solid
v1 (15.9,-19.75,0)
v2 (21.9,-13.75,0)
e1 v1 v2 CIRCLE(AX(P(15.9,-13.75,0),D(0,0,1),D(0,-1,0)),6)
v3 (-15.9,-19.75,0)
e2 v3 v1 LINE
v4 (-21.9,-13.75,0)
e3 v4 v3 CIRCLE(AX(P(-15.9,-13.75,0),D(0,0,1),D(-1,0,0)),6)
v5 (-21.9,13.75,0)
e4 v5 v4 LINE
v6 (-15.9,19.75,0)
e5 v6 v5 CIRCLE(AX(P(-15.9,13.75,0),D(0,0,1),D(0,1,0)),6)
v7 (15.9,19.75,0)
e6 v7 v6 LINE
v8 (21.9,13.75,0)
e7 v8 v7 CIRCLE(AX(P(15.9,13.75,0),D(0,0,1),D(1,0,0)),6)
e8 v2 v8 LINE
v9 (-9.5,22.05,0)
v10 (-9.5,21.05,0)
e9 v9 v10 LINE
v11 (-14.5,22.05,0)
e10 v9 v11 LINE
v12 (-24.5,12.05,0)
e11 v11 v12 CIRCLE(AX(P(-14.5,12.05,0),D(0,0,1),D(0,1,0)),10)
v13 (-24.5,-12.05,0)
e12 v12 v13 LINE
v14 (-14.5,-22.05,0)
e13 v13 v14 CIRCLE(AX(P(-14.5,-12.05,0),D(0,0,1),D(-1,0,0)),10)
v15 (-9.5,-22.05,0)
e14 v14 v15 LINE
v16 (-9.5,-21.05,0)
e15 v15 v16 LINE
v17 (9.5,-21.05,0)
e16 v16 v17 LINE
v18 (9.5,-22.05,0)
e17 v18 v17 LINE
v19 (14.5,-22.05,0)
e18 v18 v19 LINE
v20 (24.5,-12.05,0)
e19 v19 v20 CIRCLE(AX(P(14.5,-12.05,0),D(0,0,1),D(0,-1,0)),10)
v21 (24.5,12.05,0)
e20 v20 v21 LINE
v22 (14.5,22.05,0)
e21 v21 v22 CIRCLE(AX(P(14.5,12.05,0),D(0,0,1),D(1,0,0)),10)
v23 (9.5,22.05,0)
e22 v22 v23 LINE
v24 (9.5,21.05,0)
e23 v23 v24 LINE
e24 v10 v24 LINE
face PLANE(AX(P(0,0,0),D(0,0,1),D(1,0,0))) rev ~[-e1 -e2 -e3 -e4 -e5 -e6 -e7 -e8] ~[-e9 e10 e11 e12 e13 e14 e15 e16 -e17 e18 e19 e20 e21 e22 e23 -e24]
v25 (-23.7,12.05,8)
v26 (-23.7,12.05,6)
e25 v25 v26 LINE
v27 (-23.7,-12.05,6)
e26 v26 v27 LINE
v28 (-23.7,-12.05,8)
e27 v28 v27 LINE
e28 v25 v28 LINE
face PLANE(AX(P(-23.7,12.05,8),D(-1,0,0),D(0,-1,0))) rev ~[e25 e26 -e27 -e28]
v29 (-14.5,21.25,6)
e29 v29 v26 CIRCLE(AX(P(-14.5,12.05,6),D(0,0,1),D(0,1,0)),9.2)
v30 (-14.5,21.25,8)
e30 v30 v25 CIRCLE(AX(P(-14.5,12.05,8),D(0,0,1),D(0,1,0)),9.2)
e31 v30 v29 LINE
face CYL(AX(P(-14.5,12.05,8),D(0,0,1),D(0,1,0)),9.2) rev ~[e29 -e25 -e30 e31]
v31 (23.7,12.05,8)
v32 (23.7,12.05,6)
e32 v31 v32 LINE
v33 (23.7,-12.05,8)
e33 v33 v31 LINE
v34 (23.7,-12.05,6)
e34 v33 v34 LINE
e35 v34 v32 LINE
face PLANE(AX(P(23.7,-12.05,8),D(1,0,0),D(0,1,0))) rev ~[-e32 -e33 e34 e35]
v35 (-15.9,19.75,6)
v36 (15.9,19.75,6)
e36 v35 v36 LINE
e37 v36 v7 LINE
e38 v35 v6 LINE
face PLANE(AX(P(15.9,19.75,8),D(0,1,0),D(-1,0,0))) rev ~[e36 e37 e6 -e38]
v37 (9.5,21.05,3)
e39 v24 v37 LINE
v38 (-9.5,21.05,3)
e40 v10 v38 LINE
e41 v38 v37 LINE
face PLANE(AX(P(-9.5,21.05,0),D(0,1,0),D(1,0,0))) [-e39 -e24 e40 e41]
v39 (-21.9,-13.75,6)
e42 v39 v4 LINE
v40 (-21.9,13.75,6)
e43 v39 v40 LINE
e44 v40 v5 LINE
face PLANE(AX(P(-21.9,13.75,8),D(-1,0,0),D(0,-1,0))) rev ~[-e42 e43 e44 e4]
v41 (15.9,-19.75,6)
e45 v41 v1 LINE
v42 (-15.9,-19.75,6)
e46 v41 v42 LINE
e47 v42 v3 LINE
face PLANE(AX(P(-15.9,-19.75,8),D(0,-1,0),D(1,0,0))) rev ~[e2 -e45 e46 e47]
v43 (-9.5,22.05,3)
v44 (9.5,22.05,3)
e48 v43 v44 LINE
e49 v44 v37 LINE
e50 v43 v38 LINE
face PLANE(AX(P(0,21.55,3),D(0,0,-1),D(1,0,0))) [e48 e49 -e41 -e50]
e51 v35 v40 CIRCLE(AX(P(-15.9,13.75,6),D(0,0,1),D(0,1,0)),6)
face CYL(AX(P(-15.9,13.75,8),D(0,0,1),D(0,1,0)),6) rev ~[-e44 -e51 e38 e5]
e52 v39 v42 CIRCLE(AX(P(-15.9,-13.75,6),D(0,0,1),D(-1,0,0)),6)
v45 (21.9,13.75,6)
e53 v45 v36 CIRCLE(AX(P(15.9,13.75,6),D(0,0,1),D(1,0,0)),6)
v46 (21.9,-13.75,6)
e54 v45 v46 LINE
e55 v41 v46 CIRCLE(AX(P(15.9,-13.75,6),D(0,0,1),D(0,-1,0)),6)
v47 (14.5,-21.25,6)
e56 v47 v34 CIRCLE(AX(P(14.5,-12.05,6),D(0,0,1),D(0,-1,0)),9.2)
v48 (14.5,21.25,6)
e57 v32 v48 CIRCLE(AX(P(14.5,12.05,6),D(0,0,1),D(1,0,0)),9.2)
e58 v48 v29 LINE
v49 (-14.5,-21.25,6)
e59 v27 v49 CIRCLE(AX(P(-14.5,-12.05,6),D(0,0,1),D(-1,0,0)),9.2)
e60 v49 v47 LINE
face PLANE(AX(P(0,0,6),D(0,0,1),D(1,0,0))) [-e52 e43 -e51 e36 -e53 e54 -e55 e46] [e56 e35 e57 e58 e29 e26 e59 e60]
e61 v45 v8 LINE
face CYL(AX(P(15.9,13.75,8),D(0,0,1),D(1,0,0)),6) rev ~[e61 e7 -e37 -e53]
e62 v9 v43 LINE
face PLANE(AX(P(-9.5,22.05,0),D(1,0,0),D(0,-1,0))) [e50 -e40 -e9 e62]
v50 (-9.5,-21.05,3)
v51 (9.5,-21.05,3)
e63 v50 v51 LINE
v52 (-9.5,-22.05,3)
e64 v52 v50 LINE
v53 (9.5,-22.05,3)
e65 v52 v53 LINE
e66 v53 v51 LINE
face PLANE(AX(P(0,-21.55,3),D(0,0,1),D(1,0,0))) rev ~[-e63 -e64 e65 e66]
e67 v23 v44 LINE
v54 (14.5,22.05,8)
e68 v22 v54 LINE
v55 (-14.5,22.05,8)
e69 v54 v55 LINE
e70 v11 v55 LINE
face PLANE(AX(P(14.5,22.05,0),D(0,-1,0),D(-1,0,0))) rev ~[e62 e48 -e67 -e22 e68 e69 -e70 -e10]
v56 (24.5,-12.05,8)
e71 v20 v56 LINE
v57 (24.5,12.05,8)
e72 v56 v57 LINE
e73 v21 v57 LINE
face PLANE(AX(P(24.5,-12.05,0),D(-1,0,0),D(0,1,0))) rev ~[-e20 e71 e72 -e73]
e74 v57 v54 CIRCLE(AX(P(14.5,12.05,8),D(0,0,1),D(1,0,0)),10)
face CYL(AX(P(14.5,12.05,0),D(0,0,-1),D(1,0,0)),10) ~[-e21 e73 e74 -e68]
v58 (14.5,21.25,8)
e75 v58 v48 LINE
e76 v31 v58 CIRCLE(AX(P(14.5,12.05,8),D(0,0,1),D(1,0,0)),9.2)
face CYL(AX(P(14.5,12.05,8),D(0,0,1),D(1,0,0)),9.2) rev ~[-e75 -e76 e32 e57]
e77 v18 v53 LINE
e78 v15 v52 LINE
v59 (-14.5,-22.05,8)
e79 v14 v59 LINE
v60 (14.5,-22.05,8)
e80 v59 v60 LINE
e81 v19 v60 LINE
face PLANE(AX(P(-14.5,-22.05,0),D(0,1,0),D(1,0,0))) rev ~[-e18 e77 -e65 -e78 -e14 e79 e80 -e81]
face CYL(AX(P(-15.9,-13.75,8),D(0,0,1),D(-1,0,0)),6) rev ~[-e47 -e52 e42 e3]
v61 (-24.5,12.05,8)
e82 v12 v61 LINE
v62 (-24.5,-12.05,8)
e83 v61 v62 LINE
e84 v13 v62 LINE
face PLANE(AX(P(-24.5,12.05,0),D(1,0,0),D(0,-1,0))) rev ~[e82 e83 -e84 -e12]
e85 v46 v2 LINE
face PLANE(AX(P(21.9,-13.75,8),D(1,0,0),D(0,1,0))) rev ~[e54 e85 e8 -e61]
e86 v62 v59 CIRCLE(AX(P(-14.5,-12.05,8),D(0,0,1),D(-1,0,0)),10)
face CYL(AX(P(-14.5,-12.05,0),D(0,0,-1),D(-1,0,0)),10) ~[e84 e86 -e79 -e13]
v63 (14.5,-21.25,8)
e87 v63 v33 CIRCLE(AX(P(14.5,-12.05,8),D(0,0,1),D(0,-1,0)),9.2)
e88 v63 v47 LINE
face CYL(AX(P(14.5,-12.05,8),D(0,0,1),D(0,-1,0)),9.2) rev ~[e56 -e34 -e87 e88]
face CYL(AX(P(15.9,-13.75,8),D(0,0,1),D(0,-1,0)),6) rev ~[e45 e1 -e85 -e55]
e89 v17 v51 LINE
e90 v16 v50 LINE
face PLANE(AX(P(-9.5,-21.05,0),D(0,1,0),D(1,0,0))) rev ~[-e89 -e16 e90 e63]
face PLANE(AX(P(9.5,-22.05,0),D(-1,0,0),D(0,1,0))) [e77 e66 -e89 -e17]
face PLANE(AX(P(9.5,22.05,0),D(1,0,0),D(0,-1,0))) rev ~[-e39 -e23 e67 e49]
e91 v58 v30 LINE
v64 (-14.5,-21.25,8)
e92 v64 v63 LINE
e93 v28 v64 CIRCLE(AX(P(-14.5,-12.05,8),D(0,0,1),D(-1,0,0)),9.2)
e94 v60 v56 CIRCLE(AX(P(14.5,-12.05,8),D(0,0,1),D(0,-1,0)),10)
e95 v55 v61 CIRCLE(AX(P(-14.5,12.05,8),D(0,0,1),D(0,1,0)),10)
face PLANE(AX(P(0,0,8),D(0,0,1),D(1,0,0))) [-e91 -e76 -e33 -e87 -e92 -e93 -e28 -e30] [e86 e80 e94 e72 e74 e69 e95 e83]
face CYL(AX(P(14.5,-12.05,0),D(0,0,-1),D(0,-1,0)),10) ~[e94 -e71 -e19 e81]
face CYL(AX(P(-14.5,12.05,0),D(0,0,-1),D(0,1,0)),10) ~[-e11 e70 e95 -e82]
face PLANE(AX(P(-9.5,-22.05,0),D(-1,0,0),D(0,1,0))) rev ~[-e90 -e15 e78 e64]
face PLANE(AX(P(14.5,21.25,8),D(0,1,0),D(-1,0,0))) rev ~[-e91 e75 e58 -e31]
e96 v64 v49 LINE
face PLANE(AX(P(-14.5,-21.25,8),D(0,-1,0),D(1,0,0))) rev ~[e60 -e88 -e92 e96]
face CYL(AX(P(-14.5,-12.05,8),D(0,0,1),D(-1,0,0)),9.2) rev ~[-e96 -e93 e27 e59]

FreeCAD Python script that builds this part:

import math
import FreeCAD as App
import Part
import Sketcher
Q = App.Units.Quantity

doc = App.newDocument("Part")
body = doc.addObject("PartDesign::Body", "Body")

sketch1 = doc.addObject("Sketcher::SketchObject", "Sketch")
body.addObject(sketch1)
sketch1.AttachmentSupport = (doc.XY_Plane, [""])
sketch1.MapMode = "FlatFace"
sketch1.addGeometry(Part.LineSegment(App.Vector(-14, -22, 0), App.Vector(14, -22, 0)), False)
sketch1.addGeometry(Part.ArcOfCircle(Part.Circle(App.Vector(14, -12, 0), App.Vector(0, 0, 1), 10), math.radians(-90), math.radians(0)), False)
sketch1.addGeometry(Part.LineSegment(App.Vector(24, -12, 0), App.Vector(24, 12, 0)), False)
sketch1.addGeometry(Part.ArcOfCircle(Part.Circle(App.Vector(14, 12, 0), App.Vector(0, 0, 1), 10), math.radians(0), math.radians(90)), False)
sketch1.addGeometry(Part.LineSegment(App.Vector(14, 22, 0), App.Vector(-14, 22, 0)), False)
sketch1.addGeometry(Part.ArcOfCircle(Part.Circle(App.Vector(-14, 12, 0), App.Vector(0, 0, 1), 10), math.radians(90), math.radians(180)), False)
sketch1.addGeometry(Part.LineSegment(App.Vector(-24, 12, 0), App.Vector(-24, -12, 0)), False)
sketch1.addGeometry(Part.ArcOfCircle(Part.Circle(App.Vector(-14, -12, 0), App.Vector(0, 0, 1), 10), math.radians(180), math.radians(270)), False)
sketch1.addConstraint(Sketcher.Constraint("Tangent", 0, 2, 1, 1))
sketch1.addConstraint(Sketcher.Constraint("Tangent", 1, 2, 2, 1))
sketch1.addConstraint(Sketcher.Constraint("Tangent", 2, 2, 3, 1))
sketch1.addConstraint(Sketcher.Constraint("Tangent", 3, 2, 4, 1))
sketch1.addConstraint(Sketcher.Constraint("Tangent", 4, 2, 5, 1))
sketch1.addConstraint(Sketcher.Constraint("Tangent", 5, 2, 6, 1))
sketch1.addConstraint(Sketcher.Constraint("Tangent", 6, 2, 7, 1))
sketch1.addConstraint(Sketcher.Constraint("Tangent", 7, 2, 0, 1))
sketch1.addConstraint(Sketcher.Constraint("Horizontal", 0))
sketch1.addConstraint(Sketcher.Constraint("Vertical", 2))
sketch1.addConstraint(Sketcher.Constraint("Horizontal", 4))
sketch1.addConstraint(Sketcher.Constraint("Vertical", 6))
sketch1.addConstraint(Sketcher.Constraint("Equal", 1, 3))
sketch1.addConstraint(Sketcher.Constraint("Equal", 3, 5))
sketch1.addConstraint(Sketcher.Constraint("Equal", 5, 7))
sketch1.addConstraint(Sketcher.Constraint("Symmetric", 1, 3, 5, 3, -1, 1))
sketch1.addConstraint(Sketcher.Constraint("Radius", 1, Q("10 mm")))
sketch1.addConstraint(Sketcher.Constraint("DistanceX", 0, 1, 0, 2, Q("29 mm")))
sketch1.addConstraint(Sketcher.Constraint("DistanceY", 2, 1, 2, 2, Q("24.1 mm")))
pad1 = doc.addObject("PartDesign::Pad", "Pad")
body.addObject(pad1)
pad1.Profile = sketch1
pad1.Length = 8

sketch2 = doc.addObject("Sketcher::SketchObject", "Sketch001")
body.addObject(sketch2)
sketch2.AttachmentSupport = (doc.XY_Plane, [""])
sketch2.MapMode = "FlatFace"
sketch2.AttachmentOffset = App.Placement(App.Vector(0, 0, 8), App.Rotation())
sketch2.addGeometry(Part.LineSegment(App.Vector(-16, -20, 0), App.Vector(16, -20, 0)), False)
sketch2.addGeometry(Part.ArcOfCircle(Part.Circle(App.Vector(16, -14, 0), App.Vector(0, 0, 1), 6), math.radians(-90), math.radians(0)), False)
sketch2.addGeometry(Part.LineSegment(App.Vector(22, -14, 0), App.Vector(22, 14, 0)), False)
sketch2.addGeometry(Part.ArcOfCircle(Part.Circle(App.Vector(16, 14, 0), App.Vector(0, 0, 1), 6), math.radians(0), math.radians(90)), False)
sketch2.addGeometry(Part.LineSegment(App.Vector(16, 20, 0), App.Vector(-16, 20, 0)), False)
sketch2.addGeometry(Part.ArcOfCircle(Part.Circle(App.Vector(-16, 14, 0), App.Vector(0, 0, 1), 6), math.radians(90), math.radians(180)), False)
sketch2.addGeometry(Part.LineSegment(App.Vector(-22, 14, 0), App.Vector(-22, -14, 0)), False)
sketch2.addGeometry(Part.ArcOfCircle(Part.Circle(App.Vector(-16, -14, 0), App.Vector(0, 0, 1), 6), math.radians(180), math.radians(270)), False)
sketch2.addConstraint(Sketcher.Constraint("Tangent", 0, 2, 1, 1))
sketch2.addConstraint(Sketcher.Constraint("Tangent", 1, 2, 2, 1))
sketch2.addConstraint(Sketcher.Constraint("Tangent", 2, 2, 3, 1))
sketch2.addConstraint(Sketcher.Constraint("Tangent", 3, 2, 4, 1))
sketch2.addConstraint(Sketcher.Constraint("Tangent", 4, 2, 5, 1))
sketch2.addConstraint(Sketcher.Constraint("Tangent", 5, 2, 6, 1))
sketch2.addConstraint(Sketcher.Constraint("Tangent", 6, 2, 7, 1))
sketch2.addConstraint(Sketcher.Constraint("Tangent", 7, 2, 0, 1))
sketch2.addConstraint(Sketcher.Constraint("Horizontal", 0))
sketch2.addConstraint(Sketcher.Constraint("Vertical", 2))
sketch2.addConstraint(Sketcher.Constraint("Horizontal", 4))
sketch2.addConstraint(Sketcher.Constraint("Vertical", 6))
sketch2.addConstraint(Sketcher.Constraint("Equal", 1, 3))
sketch2.addConstraint(Sketcher.Constraint("Equal", 3, 5))
sketch2.addConstraint(Sketcher.Constraint("Equal", 5, 7))
sketch2.addConstraint(Sketcher.Constraint("Symmetric", 1, 3, 5, 3, -1, 1))
sketch2.addConstraint(Sketcher.Constraint("Radius", 1, Q("6 mm")))
sketch2.addConstraint(Sketcher.Constraint("DistanceX", 0, 1, 0, 2, Q("31.8 mm")))
sketch2.addConstraint(Sketcher.Constraint("DistanceY", 2, 1, 2, 2, Q("27.5 mm")))
pocket1 = doc.addObject("PartDesign::Pocket", "Pocket")
body.addObject(pocket1)
pocket1.Profile = sketch2
pocket1.Type = "ThroughAll"

sketch3 = doc.addObject("Sketcher::SketchObject", "Sketch002")
body.addObject(sketch3)
sketch3.AttachmentSupport = (doc.XY_Plane, [""])
sketch3.MapMode = "FlatFace"
sketch3.AttachmentOffset = App.Placement(App.Vector(0, 0, 8), App.Rotation())
sketch3.addGeometry(Part.ArcOfCircle(Part.Circle(App.Vector(14, -12, 0), App.Vector(0, 0, 1), 9), math.radians(-90), math.radians(0)), False)
sketch3.addGeometry(Part.LineSegment(App.Vector(24, -12, 0), App.Vector(24, 12, 0)), False)
sketch3.addGeometry(Part.ArcOfCircle(Part.Circle(App.Vector(14, 12, 0), App.Vector(0, 0, 1), 9), math.radians(0), math.radians(90)), False)
sketch3.addGeometry(Part.LineSegment(App.Vector(14, 21, 0), App.Vector(-14, 21, 0)), False)
sketch3.addGeometry(Part.ArcOfCircle(Part.Circle(App.Vector(-14, 12, 0), App.Vector(0, 0, 1), 9), math.radians(90), math.radians(180)), False)
sketch3.addGeometry(Part.LineSegment(App.Vector(-24, 12, 0), App.Vector(-24, -12, 0)), False)
sketch3.addGeometry(Part.ArcOfCircle(Part.Circle(App.Vector(-14, -12, 0), App.Vector(0, 0, 1), 9), math.radians(180), math.radians(270)), False)
sketch3.addGeometry(Part.LineSegment(App.Vector(-14, -21, 0), App.Vector(14, -21, 0)), False)
sketch3.addConstraint(Sketcher.Constraint("Tangent", 0, 2, 1, 1))
sketch3.addConstraint(Sketcher.Constraint("Tangent", 1, 2, 2, 1))
sketch3.addConstraint(Sketcher.Constraint("Tangent", 2, 2, 3, 1))
sketch3.addConstraint(Sketcher.Constraint("Tangent", 3, 2, 4, 1))
sketch3.addConstraint(Sketcher.Constraint("Tangent", 4, 2, 5, 1))
sketch3.addConstraint(Sketcher.Constraint("Tangent", 5, 2, 6, 1))
sketch3.addConstraint(Sketcher.Constraint("Tangent", 6, 2, 7, 1))
sketch3.addConstraint(Sketcher.Constraint("Tangent", 7, 2, 0, 1))
sketch3.addConstraint(Sketcher.Constraint("Vertical", 1))
sketch3.addConstraint(Sketcher.Constraint("Horizontal", 3))
sketch3.addConstraint(Sketcher.Constraint("Vertical", 5))
sketch3.addConstraint(Sketcher.Constraint("Horizontal", 7))
sketch3.addConstraint(Sketcher.Constraint("Equal", 0, 2))
sketch3.addConstraint(Sketcher.Constraint("Equal", 2, 4))
sketch3.addConstraint(Sketcher.Constraint("Equal", 4, 6))
sketch3.addConstraint(Sketcher.Constraint("Symmetric", 0, 3, 4, 3, -1, 1))
sketch3.addConstraint(Sketcher.Constraint("Radius", 0, Q("9.2 mm")))
sketch3.addConstraint(Sketcher.Constraint("DistanceX", 3, 2, 3, 1, Q("29 mm")))
sketch3.addConstraint(Sketcher.Constraint("DistanceY", 1, 1, 1, 2, Q("24.1 mm")))
pocket2 = doc.addObject("PartDesign::Pocket", "Pocket001")
body.addObject(pocket2)
pocket2.Profile = sketch3
pocket2.Length = 2

sketch4 = doc.addObject("Sketcher::SketchObject", "Sketch003")
body.addObject(sketch4)
sketch4.AttachmentSupport = (doc.XY_Plane, [""])
sketch4.MapMode = "FlatFace"
sketch4.addGeometry(Part.LineSegment(App.Vector(-9.5, -21.1, 0), App.Vector(-9.5, -22.1, 0)), False)
sketch4.addGeometry(Part.LineSegment(App.Vector(-9.5, -22.1, 0), App.Vector(9.5, -22.1, 0)), False)
sketch4.addGeometry(Part.LineSegment(App.Vector(9.5, -22.1, 0), App.Vector(9.5, -21.1, 0)), False)
sketch4.addGeometry(Part.LineSegment(App.Vector(9.5, -21.1, 0), App.Vector(-9.5, -21.1, 0)), False)
sketch4.addConstraint(Sketcher.Constraint("Coincident", 0, 2, 1, 1))
sketch4.addConstraint(Sketcher.Constraint("Coincident", 1, 2, 2, 1))
sketch4.addConstraint(Sketcher.Constraint("Coincident", 2, 2, 3, 1))
sketch4.addConstraint(Sketcher.Constraint("Coincident", 3, 2, 0, 1))
sketch4.addConstraint(Sketcher.Constraint("Vertical", 0))
sketch4.addConstraint(Sketcher.Constraint("Horizontal", 1))
sketch4.addConstraint(Sketcher.Constraint("Vertical", 2))
sketch4.addConstraint(Sketcher.Constraint("Horizontal", 3))
sketch4.addConstraint(Sketcher.Constraint("DistanceX", 1, 1, 1, 2, Q("19 mm")))
sketch4.addConstraint(Sketcher.Constraint("DistanceY", 0, 2, 0, 1, Q("1 mm")))
sketch4.addConstraint(Sketcher.Constraint("DistanceX", 0, 2, -1, 1, Q("9.5 mm")))
sketch4.addConstraint(Sketcher.Constraint("DistanceY", 0, 2, -1, 1, Q("22.05 mm")))
pocket3 = doc.addObject("PartDesign::Pocket", "Pocket002")
body.addObject(pocket3)
pocket3.Profile = sketch4
pocket3.Length = 3
pocket3.Reversed = True

sketch5 = doc.addObject("Sketcher::SketchObject", "Sketch004")
body.addObject(sketch5)
sketch5.AttachmentSupport = (doc.XY_Plane, [""])
sketch5.MapMode = "FlatFace"
sketch5.addGeometry(Part.LineSegment(App.Vector(-9.5, 21.1, 0), App.Vector(-9.5, 22.1, 0)), False)
sketch5.addGeometry(Part.LineSegment(App.Vector(-9.5, 22.1, 0), App.Vector(9.5, 22.1, 0)), False)
sketch5.addGeometry(Part.LineSegment(App.Vector(9.5, 22.1, 0), App.Vector(9.5, 21.1, 0)), False)
sketch5.addGeometry(Part.LineSegment(App.Vector(9.5, 21.1, 0), App.Vector(-9.5, 21.1, 0)), False)
sketch5.addConstraint(Sketcher.Constraint("Coincident", 0, 2, 1, 1))
sketch5.addConstraint(Sketcher.Constraint("Coincident", 1, 2, 2, 1))
sketch5.addConstraint(Sketcher.Constraint("Coincident", 2, 2, 3, 1))
sketch5.addConstraint(Sketcher.Constraint("Coincident", 3, 2, 0, 1))
sketch5.addConstraint(Sketcher.Constraint("Vertical", 0))
sketch5.addConstraint(Sketcher.Constraint("Horizontal", 1))
sketch5.addConstraint(Sketcher.Constraint("Vertical", 2))
sketch5.addConstraint(Sketcher.Constraint("Horizontal", 3))
sketch5.addConstraint(Sketcher.Constraint("DistanceX", 1, 1, 1, 2, Q("19 mm")))
sketch5.addConstraint(Sketcher.Constraint("DistanceY", 0, 1, 0, 2, Q("1 mm")))
sketch5.addConstraint(Sketcher.Constraint("DistanceX", 0, 2, -1, 1, Q("9.5 mm")))
sketch5.addConstraint(Sketcher.Constraint("DistanceY", -1, 1, 0, 2, Q("22.05 mm")))
pocket4 = doc.addObject("PartDesign::Pocket", "Pocket003")
body.addObject(pocket4)
pocket4.Profile = sketch5
pocket4.Length = 3
pocket4.Reversed = True

doc.recompute()
